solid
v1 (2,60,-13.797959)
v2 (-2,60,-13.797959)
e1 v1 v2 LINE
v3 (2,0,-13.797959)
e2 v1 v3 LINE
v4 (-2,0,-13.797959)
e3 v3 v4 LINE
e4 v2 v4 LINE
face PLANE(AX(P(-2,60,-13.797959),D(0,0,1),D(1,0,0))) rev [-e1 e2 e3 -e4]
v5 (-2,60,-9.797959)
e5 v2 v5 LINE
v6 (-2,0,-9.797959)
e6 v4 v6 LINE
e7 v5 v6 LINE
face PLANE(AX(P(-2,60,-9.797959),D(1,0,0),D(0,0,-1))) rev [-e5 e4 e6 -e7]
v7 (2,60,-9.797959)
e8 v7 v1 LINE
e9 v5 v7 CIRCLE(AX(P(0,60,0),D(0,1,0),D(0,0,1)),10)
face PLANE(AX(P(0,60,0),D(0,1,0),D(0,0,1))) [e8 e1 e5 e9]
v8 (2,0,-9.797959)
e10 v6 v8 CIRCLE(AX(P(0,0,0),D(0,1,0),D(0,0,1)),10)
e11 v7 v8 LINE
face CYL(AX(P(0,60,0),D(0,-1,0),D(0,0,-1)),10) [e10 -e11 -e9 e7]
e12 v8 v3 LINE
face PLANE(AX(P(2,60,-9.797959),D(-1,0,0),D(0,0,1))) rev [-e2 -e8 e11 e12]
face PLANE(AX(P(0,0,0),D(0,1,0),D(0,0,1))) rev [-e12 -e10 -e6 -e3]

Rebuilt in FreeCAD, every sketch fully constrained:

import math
import FreeCAD as App
import Part
import Sketcher

V = App.Vector
Q = App.Units.Quantity

doc = App.newDocument("Part")
body = doc.addObject("PartDesign::Body", "Body")

# Sketch on XZ plane
sketch1 = body.newObject("Sketcher::SketchObject", "Sketch")
sketch1.AttachmentSupport = (doc.getObject("XZ_Plane"), [""])
sketch1.MapMode = "FlatFace"
sketch1.addGeometry([
    Part.LineSegment(V(-2, -13.8, 0), V(-2, -9.8, 0)),
    Part.ArcOfCircle(Part.Circle(V(0, 0, 0), V(0, 0, 1), 10), math.radians(-78), math.radians(258)),
    Part.LineSegment(V(2, -9.8, 0), V(2, -13.8, 0)),
    Part.LineSegment(V(2, -13.8, 0), V(-2, -13.8, 0)),
], False)
sketch1.addConstraint([
    Sketcher.Constraint("Coincident", 0, 2, 1, 2),
    Sketcher.Constraint("Coincident", 1, 1, 2, 1),
    Sketcher.Constraint("Coincident", 2, 2, 3, 1),
    Sketcher.Constraint("Coincident", 3, 2, 0, 1),
    Sketcher.Constraint("Vertical", 0),
    Sketcher.Constraint("Vertical", 2),
    Sketcher.Constraint("Horizontal", 3),
    Sketcher.Constraint("Coincident", 1, 3, -1, 1),
    Sketcher.Constraint("Horizontal", 0, 2, 1, 1),
    Sketcher.Constraint("Equal", 3, 0),
    Sketcher.Constraint("Radius", 1, Q("10 mm")),
    Sketcher.Constraint("DistanceX", 3, 2, 3, 1, Q("4 mm")),
])
pad1 = body.newObject("PartDesign::Pad", "Pad")
pad1.Profile = sketch1
pad1.Length = 60
pad1.Reversed = True

doc.recompute()
